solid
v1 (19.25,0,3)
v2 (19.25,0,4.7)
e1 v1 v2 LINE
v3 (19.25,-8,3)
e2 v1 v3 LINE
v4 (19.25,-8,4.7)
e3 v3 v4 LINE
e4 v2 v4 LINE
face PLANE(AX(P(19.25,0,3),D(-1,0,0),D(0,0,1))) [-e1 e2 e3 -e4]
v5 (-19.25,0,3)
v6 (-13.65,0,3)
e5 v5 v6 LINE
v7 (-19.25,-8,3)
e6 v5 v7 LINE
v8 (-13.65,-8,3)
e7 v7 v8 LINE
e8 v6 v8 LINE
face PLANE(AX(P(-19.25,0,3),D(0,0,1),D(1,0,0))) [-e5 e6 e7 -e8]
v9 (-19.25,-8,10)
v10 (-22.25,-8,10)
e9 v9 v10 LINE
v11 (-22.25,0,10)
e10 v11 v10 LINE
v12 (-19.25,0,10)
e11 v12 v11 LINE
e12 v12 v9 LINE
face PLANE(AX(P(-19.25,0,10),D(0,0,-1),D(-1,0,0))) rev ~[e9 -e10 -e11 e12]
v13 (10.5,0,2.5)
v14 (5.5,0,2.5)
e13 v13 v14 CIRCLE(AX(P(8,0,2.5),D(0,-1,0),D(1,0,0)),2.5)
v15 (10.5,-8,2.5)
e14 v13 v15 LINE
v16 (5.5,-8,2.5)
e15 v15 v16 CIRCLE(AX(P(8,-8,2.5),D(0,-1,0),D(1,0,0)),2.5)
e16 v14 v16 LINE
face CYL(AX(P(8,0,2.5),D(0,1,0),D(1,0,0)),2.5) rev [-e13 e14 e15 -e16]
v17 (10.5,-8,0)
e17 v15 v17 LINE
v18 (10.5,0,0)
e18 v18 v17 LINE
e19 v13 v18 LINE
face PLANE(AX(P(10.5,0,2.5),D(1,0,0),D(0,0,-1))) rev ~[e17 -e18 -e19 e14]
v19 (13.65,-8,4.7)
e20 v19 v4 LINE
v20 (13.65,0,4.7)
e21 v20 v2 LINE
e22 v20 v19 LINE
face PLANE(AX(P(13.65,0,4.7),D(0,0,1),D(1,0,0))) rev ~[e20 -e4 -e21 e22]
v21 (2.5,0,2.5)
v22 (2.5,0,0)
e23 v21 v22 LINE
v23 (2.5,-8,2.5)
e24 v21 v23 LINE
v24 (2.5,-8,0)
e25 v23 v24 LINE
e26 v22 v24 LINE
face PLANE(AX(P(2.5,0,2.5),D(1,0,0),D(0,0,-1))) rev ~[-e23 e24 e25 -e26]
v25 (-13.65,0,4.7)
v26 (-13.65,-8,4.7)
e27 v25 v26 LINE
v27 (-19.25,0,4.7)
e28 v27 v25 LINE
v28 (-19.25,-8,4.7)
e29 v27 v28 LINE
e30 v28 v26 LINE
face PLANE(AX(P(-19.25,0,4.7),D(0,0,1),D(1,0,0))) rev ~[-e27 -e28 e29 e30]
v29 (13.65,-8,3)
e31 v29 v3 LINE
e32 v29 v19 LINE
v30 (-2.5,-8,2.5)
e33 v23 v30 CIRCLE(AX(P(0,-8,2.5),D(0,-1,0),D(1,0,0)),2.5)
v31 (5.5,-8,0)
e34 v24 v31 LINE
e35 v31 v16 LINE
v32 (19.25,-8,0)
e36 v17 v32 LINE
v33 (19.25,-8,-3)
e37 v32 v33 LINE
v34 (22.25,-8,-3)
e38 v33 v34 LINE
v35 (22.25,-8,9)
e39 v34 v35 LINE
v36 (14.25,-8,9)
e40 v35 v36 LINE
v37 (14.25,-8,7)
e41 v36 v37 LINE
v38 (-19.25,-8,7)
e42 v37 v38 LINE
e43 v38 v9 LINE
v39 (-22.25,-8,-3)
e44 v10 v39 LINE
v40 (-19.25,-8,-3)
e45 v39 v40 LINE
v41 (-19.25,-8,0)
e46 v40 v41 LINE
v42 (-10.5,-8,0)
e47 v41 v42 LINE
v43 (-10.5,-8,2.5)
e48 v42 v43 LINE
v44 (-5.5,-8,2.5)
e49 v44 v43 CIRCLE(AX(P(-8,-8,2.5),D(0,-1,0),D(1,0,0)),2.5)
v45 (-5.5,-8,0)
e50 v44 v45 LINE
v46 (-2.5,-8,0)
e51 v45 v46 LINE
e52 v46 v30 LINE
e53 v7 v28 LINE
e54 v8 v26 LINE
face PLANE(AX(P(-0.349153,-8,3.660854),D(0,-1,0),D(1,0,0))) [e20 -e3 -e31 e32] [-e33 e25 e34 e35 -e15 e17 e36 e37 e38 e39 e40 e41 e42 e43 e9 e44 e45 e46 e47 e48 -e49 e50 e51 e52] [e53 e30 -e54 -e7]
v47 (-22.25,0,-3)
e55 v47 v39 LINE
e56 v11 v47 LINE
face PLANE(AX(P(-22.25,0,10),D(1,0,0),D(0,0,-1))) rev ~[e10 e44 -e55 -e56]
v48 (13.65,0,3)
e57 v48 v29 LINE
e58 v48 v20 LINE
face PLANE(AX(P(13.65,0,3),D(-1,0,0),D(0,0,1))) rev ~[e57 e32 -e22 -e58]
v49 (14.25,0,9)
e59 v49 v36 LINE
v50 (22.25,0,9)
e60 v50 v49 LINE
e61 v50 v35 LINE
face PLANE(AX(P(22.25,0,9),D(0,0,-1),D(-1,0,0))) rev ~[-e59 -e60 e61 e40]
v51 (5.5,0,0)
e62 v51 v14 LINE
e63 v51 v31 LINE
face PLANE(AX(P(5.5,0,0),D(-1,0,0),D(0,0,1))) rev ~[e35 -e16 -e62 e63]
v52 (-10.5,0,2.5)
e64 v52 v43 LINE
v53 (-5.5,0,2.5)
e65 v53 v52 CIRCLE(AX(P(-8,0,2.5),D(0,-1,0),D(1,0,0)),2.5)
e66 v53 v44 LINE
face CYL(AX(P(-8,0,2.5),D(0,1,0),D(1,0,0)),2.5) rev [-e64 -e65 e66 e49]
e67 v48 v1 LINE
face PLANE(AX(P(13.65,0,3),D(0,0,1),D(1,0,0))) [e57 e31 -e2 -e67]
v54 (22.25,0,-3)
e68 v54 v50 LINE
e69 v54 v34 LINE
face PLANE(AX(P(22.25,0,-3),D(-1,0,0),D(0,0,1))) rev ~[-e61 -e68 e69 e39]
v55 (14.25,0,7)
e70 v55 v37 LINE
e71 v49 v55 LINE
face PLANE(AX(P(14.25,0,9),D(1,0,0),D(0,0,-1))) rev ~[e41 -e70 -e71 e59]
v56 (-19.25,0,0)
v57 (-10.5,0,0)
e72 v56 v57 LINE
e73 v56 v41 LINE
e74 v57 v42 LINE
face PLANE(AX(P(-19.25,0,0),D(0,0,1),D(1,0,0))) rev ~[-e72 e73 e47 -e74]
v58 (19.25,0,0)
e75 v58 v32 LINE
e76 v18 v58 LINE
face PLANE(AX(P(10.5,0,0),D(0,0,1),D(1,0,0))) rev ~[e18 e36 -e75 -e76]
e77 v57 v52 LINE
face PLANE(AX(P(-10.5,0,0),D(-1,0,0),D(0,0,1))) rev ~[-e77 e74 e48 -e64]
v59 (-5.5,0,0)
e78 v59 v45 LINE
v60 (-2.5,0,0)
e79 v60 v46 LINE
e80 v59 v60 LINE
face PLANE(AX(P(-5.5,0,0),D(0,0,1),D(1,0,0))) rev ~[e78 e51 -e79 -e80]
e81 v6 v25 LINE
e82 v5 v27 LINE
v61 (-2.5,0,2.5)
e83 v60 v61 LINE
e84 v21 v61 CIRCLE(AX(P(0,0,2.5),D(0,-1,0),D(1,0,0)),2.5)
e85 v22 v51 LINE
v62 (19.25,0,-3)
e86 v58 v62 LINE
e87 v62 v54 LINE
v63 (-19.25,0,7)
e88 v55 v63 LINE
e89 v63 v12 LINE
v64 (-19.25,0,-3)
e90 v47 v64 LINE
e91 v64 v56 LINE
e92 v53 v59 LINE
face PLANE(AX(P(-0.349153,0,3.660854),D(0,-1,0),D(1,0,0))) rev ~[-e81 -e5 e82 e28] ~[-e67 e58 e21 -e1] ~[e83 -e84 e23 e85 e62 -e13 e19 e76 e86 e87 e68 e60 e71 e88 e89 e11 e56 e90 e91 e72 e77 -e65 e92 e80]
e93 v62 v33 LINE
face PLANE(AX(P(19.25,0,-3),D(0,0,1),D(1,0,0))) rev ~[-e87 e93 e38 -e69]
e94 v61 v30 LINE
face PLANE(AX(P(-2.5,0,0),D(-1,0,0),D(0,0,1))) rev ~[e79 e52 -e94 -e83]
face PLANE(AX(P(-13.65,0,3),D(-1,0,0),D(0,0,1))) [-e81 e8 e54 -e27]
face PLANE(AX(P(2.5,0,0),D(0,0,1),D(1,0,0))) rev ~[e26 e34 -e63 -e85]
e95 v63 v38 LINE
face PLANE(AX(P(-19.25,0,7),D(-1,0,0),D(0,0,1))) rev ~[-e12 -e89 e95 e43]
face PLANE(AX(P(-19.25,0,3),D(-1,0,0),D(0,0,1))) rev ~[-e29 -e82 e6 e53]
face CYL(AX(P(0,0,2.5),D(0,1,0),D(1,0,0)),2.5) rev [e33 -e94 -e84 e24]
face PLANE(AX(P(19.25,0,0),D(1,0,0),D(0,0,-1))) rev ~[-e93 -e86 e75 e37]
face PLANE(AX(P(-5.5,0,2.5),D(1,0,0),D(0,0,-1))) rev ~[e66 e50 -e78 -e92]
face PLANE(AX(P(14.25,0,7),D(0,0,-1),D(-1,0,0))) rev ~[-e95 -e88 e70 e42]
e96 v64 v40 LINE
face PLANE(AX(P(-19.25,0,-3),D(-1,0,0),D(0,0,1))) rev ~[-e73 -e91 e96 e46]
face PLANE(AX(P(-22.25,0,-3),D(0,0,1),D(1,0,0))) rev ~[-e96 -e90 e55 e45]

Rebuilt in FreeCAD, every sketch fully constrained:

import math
import FreeCAD as App
import Part
import Sketcher

V = App.Vector
Q = App.Units.Quantity

doc = App.newDocument("Part")
body = doc.addObject("PartDesign::Body", "Body")

# Sketch on XZ plane
sketch1 = doc.addObject("Sketcher::SketchObject", "Sketch")
body.addObject(sketch1)
sketch1.AttachmentSupport = (doc.XZ_Plane, [""])
sketch1.MapMode = "FlatFace"
sketch1.addGeometry([
    Part.LineSegment(V(-22.2, -3, 0), V(-19.2, -3, 0)),  # 0
    Part.LineSegment(V(-19.2, -3, 0), V(-19.2, 0, 0)),  # 1
    Part.LineSegment(V(-19.2, 0, 0), V(-10.5, 0, 0)),  # 2
    Part.LineSegment(V(-10.5, 0, 0), V(-10.5, 2.5, 0)),  # 3
    Part.ArcOfCircle(Part.Circle(V(-8, 2.5, 0), V(0, 0, 1), 2.5), math.radians(0), math.radians(180)),  # 4
    Part.LineSegment(V(-5.5, 2.5, 0), V(-5.5, 0, 0)),  # 5
    Part.LineSegment(V(-5.5, 0, 0), V(-2.5, 0, 0)),  # 6
    Part.LineSegment(V(-2.5, 0, 0), V(-2.5, 2.5, 0)),  # 7
    Part.ArcOfCircle(Part.Circle(V(0, 2.5, 0), V(0, 0, 1), 2.5), math.radians(0), math.radians(180)),  # 8
    Part.LineSegment(V(2.5, 2.5, 0), V(2.5, 0, 0)),  # 9
    Part.LineSegment(V(2.5, 0, 0), V(5.5, 0, 0)),  # 10
    Part.LineSegment(V(5.5, 0, 0), V(5.5, 2.5, 0)),  # 11
    Part.ArcOfCircle(Part.Circle(V(8, 2.5, 0), V(0, 0, 1), 2.5), math.radians(0), math.radians(180)),  # 12
    Part.LineSegment(V(10.5, 2.5, 0), V(10.5, 0, 0)),  # 13
    Part.LineSegment(V(10.5, 0, 0), V(19.2, 0, 0)),  # 14
    Part.LineSegment(V(19.2, 0, 0), V(19.2, -3, 0)),  # 15
    Part.LineSegment(V(19.2, -3, 0), V(22.2, -3, 0)),  # 16
    Part.LineSegment(V(22.2, -3, 0), V(22.2, 9, 0)),  # 17
    Part.LineSegment(V(22.2, 9, 0), V(14.2, 9, 0)),  # 18
    Part.LineSegment(V(14.2, 9, 0), V(14.2, 7, 0)),  # 19
    Part.LineSegment(V(14.2, 7, 0), V(-19.2, 7, 0)),  # 20
    Part.LineSegment(V(-19.2, 7, 0), V(-19.2, 10, 0)),  # 21
    Part.LineSegment(V(-19.2, 10, 0), V(-22.2, 10, 0)),  # 22
    Part.LineSegment(V(-22.2, 10, 0), V(-22.2, -3, 0)),  # 23
    Part.LineSegment(V(-13.7, 3, 0), V(-19.2, 3, 0)),  # 24
    Part.LineSegment(V(-19.2, 3, 0), V(-19.2, 4.7, 0)),  # 25
    Part.LineSegment(V(-19.2, 4.7, 0), V(-13.7, 4.7, 0)),  # 26
    Part.LineSegment(V(-13.7, 4.7, 0), V(-13.7, 3, 0)),  # 27
    Part.LineSegment(V(19.2, 3, 0), V(13.7, 3, 0)),  # 28
    Part.LineSegment(V(13.7, 3, 0), V(13.7, 4.7, 0)),  # 29
    Part.LineSegment(V(13.7, 4.7, 0), V(19.2, 4.7, 0)),  # 30
    Part.LineSegment(V(19.2, 4.7, 0), V(19.2, 3, 0)),  # 31
], False)
sketch1.addConstraint([
    Sketcher.Constraint("Coincident", 0, 2, 1, 1),
    Sketcher.Constraint("Coincident", 1, 2, 2, 1),
    Sketcher.Constraint("Coincident", 2, 2, 3, 1),
    Sketcher.Constraint("Tangent", 3, 2, 4, 2),
    Sketcher.Constraint("Tangent", 4, 1, 5, 1),
    Sketcher.Constraint("Coincident", 5, 2, 6, 1),
    Sketcher.Constraint("Coincident", 6, 2, 7, 1),
    Sketcher.Constraint("Tangent", 7, 2, 8, 2),
    Sketcher.Constraint("Tangent", 8, 1, 9, 1),
    Sketcher.Constraint("Coincident", 9, 2, 10, 1),
    Sketcher.Constraint("Coincident", 10, 2, 11, 1),
    Sketcher.Constraint("Tangent", 11, 2, 12, 2),
    Sketcher.Constraint("Tangent", 12, 1, 13, 1),
    Sketcher.Constraint("Coincident", 13, 2, 14, 1),
    Sketcher.Constraint("Coincident", 14, 2, 15, 1),
    Sketcher.Constraint("Coincident", 15, 2, 16, 1),
    Sketcher.Constraint("Coincident", 16, 2, 17, 1),
    Sketcher.Constraint("Coincident", 17, 2, 18, 1),
    Sketcher.Constraint("Coincident", 18, 2, 19, 1),
    Sketcher.Constraint("Coincident", 19, 2, 20, 1),
    Sketcher.Constraint("Coincident", 20, 2, 21, 1),
    Sketcher.Constraint("Coincident", 21, 2, 22, 1),
    Sketcher.Constraint("Coincident", 22, 2, 23, 1),
    Sketcher.Constraint("Coincident", 23, 2, 0, 1),
    Sketcher.Constraint("Coincident", 24, 2, 25, 1),
    Sketcher.Constraint("Coincident", 25, 2, 26, 1),
    Sketcher.Constraint("Coincident", 26, 2, 27, 1),
    Sketcher.Constraint("Coincident", 27, 2, 24, 1),
    Sketcher.Constraint("Coincident", 28, 2, 29, 1),
    Sketcher.Constraint("Coincident", 29, 2, 30, 1),
    Sketcher.Constraint("Coincident", 30, 2, 31, 1),
    Sketcher.Constraint("Coincident", 31, 2, 28, 1),
    Sketcher.Constraint("Horizontal", 0),
    Sketcher.Constraint("Vertical", 1),
    Sketcher.Constraint("Horizontal", 2),
    Sketcher.Constraint("Vertical", 3),
    Sketcher.Constraint("Vertical", 5),
    Sketcher.Constraint("Horizontal", 6),
    Sketcher.Constraint("Vertical", 7),
    Sketcher.Constraint("Vertical", 9),
    Sketcher.Constraint("Horizontal", 10),
    Sketcher.Constraint("Vertical", 11),
    Sketcher.Constraint("Vertical", 13),
    Sketcher.Constraint("Horizontal", 14),
    Sketcher.Constraint("Vertical", 15),
    Sketcher.Constraint("Horizontal", 16),
    Sketcher.Constraint("Vertical", 17),
    Sketcher.Constraint("Horizontal", 18),
    Sketcher.Constraint("Vertical", 19),
    Sketcher.Constraint("Horizontal", 20),
    Sketcher.Constraint("Vertical", 21),
    Sketcher.Constraint("Horizontal", 22),
    Sketcher.Constraint("Vertical", 23),
    Sketcher.Constraint("Horizontal", 24),
    Sketcher.Constraint("Vertical", 25),
    Sketcher.Constraint("Horizontal", 26),
    Sketcher.Constraint("Vertical", 27),
    Sketcher.Constraint("Horizontal", 28),
    Sketcher.Constraint("Vertical", 29),
    Sketcher.Constraint("Horizontal", 30),
    Sketcher.Constraint("Vertical", 31),
    Sketcher.Constraint("Equal", 4, 8),
    Sketcher.Constraint("Equal", 8, 12),
    Sketcher.Constraint("Symmetric", 6, 2, 9, 2, -1, 1),
    Sketcher.Constraint("Symmetric", 2, 2, 13, 2, -1, 1),
    Sketcher.Constraint("Symmetric", 15, 2, 24, 2, -1, 1),
    Sketcher.Constraint("Symmetric", 0, 2, 31, 2, -1, 1),
    Sketcher.Constraint("Symmetric", 1, 2, 14, 2, -2),
    Sketcher.Constraint("Symmetric", 16, 2, 23, 2, -2),
    Sketcher.Constraint("Symmetric", 26, 2, 29, 2, -2),
    Sketcher.Constraint("PointOnObject", 5, 2, -1),
    Sketcher.Constraint("Horizontal", 4, 3, 8, 3),
    Sketcher.Constraint("Horizontal", 8, 3, 12, 3),
    Sketcher.Constraint("Vertical", 1, 2, 20, 2),
    Sketcher.Constraint("Equal", 0, 6),
    Sketcher.Constraint("Equal", 22, 1),
    Sketcher.Constraint("Equal", 15, 21),
    Sketcher.Constraint("Radius", 4, Q("2.5 mm")),
    Sketcher.Constraint("DistanceX", 0, 1, 0, 2, Q("3 mm")),
    Sketcher.Constraint("DistanceX", 18, 2, 18, 1, Q("8 mm")),
    Sketcher.Constraint("DistanceY", 17, 1, 17, 2, Q("12 mm")),
    Sketcher.Constraint("DistanceY", 19, 2, 19, 1, Q("2 mm")),
    Sketcher.Constraint("DistanceX", 20, 2, 20, 1, Q("33.5 mm")),
    Sketcher.Constraint("DistanceX", 24, 2, 24, 1, Q("5.6 mm")),
    Sketcher.Constraint("DistanceY", 3, 1, 3, 2, Q("2.5 mm")),
    Sketcher.Constraint("DistanceY", 25, 1, 25, 2, Q("1.7 mm")),
])
pad1 = doc.addObject("PartDesign::Pad", "Pad")
body.addObject(pad1)
pad1.Profile = sketch1
pad1.Length = 8

doc.recompute()
